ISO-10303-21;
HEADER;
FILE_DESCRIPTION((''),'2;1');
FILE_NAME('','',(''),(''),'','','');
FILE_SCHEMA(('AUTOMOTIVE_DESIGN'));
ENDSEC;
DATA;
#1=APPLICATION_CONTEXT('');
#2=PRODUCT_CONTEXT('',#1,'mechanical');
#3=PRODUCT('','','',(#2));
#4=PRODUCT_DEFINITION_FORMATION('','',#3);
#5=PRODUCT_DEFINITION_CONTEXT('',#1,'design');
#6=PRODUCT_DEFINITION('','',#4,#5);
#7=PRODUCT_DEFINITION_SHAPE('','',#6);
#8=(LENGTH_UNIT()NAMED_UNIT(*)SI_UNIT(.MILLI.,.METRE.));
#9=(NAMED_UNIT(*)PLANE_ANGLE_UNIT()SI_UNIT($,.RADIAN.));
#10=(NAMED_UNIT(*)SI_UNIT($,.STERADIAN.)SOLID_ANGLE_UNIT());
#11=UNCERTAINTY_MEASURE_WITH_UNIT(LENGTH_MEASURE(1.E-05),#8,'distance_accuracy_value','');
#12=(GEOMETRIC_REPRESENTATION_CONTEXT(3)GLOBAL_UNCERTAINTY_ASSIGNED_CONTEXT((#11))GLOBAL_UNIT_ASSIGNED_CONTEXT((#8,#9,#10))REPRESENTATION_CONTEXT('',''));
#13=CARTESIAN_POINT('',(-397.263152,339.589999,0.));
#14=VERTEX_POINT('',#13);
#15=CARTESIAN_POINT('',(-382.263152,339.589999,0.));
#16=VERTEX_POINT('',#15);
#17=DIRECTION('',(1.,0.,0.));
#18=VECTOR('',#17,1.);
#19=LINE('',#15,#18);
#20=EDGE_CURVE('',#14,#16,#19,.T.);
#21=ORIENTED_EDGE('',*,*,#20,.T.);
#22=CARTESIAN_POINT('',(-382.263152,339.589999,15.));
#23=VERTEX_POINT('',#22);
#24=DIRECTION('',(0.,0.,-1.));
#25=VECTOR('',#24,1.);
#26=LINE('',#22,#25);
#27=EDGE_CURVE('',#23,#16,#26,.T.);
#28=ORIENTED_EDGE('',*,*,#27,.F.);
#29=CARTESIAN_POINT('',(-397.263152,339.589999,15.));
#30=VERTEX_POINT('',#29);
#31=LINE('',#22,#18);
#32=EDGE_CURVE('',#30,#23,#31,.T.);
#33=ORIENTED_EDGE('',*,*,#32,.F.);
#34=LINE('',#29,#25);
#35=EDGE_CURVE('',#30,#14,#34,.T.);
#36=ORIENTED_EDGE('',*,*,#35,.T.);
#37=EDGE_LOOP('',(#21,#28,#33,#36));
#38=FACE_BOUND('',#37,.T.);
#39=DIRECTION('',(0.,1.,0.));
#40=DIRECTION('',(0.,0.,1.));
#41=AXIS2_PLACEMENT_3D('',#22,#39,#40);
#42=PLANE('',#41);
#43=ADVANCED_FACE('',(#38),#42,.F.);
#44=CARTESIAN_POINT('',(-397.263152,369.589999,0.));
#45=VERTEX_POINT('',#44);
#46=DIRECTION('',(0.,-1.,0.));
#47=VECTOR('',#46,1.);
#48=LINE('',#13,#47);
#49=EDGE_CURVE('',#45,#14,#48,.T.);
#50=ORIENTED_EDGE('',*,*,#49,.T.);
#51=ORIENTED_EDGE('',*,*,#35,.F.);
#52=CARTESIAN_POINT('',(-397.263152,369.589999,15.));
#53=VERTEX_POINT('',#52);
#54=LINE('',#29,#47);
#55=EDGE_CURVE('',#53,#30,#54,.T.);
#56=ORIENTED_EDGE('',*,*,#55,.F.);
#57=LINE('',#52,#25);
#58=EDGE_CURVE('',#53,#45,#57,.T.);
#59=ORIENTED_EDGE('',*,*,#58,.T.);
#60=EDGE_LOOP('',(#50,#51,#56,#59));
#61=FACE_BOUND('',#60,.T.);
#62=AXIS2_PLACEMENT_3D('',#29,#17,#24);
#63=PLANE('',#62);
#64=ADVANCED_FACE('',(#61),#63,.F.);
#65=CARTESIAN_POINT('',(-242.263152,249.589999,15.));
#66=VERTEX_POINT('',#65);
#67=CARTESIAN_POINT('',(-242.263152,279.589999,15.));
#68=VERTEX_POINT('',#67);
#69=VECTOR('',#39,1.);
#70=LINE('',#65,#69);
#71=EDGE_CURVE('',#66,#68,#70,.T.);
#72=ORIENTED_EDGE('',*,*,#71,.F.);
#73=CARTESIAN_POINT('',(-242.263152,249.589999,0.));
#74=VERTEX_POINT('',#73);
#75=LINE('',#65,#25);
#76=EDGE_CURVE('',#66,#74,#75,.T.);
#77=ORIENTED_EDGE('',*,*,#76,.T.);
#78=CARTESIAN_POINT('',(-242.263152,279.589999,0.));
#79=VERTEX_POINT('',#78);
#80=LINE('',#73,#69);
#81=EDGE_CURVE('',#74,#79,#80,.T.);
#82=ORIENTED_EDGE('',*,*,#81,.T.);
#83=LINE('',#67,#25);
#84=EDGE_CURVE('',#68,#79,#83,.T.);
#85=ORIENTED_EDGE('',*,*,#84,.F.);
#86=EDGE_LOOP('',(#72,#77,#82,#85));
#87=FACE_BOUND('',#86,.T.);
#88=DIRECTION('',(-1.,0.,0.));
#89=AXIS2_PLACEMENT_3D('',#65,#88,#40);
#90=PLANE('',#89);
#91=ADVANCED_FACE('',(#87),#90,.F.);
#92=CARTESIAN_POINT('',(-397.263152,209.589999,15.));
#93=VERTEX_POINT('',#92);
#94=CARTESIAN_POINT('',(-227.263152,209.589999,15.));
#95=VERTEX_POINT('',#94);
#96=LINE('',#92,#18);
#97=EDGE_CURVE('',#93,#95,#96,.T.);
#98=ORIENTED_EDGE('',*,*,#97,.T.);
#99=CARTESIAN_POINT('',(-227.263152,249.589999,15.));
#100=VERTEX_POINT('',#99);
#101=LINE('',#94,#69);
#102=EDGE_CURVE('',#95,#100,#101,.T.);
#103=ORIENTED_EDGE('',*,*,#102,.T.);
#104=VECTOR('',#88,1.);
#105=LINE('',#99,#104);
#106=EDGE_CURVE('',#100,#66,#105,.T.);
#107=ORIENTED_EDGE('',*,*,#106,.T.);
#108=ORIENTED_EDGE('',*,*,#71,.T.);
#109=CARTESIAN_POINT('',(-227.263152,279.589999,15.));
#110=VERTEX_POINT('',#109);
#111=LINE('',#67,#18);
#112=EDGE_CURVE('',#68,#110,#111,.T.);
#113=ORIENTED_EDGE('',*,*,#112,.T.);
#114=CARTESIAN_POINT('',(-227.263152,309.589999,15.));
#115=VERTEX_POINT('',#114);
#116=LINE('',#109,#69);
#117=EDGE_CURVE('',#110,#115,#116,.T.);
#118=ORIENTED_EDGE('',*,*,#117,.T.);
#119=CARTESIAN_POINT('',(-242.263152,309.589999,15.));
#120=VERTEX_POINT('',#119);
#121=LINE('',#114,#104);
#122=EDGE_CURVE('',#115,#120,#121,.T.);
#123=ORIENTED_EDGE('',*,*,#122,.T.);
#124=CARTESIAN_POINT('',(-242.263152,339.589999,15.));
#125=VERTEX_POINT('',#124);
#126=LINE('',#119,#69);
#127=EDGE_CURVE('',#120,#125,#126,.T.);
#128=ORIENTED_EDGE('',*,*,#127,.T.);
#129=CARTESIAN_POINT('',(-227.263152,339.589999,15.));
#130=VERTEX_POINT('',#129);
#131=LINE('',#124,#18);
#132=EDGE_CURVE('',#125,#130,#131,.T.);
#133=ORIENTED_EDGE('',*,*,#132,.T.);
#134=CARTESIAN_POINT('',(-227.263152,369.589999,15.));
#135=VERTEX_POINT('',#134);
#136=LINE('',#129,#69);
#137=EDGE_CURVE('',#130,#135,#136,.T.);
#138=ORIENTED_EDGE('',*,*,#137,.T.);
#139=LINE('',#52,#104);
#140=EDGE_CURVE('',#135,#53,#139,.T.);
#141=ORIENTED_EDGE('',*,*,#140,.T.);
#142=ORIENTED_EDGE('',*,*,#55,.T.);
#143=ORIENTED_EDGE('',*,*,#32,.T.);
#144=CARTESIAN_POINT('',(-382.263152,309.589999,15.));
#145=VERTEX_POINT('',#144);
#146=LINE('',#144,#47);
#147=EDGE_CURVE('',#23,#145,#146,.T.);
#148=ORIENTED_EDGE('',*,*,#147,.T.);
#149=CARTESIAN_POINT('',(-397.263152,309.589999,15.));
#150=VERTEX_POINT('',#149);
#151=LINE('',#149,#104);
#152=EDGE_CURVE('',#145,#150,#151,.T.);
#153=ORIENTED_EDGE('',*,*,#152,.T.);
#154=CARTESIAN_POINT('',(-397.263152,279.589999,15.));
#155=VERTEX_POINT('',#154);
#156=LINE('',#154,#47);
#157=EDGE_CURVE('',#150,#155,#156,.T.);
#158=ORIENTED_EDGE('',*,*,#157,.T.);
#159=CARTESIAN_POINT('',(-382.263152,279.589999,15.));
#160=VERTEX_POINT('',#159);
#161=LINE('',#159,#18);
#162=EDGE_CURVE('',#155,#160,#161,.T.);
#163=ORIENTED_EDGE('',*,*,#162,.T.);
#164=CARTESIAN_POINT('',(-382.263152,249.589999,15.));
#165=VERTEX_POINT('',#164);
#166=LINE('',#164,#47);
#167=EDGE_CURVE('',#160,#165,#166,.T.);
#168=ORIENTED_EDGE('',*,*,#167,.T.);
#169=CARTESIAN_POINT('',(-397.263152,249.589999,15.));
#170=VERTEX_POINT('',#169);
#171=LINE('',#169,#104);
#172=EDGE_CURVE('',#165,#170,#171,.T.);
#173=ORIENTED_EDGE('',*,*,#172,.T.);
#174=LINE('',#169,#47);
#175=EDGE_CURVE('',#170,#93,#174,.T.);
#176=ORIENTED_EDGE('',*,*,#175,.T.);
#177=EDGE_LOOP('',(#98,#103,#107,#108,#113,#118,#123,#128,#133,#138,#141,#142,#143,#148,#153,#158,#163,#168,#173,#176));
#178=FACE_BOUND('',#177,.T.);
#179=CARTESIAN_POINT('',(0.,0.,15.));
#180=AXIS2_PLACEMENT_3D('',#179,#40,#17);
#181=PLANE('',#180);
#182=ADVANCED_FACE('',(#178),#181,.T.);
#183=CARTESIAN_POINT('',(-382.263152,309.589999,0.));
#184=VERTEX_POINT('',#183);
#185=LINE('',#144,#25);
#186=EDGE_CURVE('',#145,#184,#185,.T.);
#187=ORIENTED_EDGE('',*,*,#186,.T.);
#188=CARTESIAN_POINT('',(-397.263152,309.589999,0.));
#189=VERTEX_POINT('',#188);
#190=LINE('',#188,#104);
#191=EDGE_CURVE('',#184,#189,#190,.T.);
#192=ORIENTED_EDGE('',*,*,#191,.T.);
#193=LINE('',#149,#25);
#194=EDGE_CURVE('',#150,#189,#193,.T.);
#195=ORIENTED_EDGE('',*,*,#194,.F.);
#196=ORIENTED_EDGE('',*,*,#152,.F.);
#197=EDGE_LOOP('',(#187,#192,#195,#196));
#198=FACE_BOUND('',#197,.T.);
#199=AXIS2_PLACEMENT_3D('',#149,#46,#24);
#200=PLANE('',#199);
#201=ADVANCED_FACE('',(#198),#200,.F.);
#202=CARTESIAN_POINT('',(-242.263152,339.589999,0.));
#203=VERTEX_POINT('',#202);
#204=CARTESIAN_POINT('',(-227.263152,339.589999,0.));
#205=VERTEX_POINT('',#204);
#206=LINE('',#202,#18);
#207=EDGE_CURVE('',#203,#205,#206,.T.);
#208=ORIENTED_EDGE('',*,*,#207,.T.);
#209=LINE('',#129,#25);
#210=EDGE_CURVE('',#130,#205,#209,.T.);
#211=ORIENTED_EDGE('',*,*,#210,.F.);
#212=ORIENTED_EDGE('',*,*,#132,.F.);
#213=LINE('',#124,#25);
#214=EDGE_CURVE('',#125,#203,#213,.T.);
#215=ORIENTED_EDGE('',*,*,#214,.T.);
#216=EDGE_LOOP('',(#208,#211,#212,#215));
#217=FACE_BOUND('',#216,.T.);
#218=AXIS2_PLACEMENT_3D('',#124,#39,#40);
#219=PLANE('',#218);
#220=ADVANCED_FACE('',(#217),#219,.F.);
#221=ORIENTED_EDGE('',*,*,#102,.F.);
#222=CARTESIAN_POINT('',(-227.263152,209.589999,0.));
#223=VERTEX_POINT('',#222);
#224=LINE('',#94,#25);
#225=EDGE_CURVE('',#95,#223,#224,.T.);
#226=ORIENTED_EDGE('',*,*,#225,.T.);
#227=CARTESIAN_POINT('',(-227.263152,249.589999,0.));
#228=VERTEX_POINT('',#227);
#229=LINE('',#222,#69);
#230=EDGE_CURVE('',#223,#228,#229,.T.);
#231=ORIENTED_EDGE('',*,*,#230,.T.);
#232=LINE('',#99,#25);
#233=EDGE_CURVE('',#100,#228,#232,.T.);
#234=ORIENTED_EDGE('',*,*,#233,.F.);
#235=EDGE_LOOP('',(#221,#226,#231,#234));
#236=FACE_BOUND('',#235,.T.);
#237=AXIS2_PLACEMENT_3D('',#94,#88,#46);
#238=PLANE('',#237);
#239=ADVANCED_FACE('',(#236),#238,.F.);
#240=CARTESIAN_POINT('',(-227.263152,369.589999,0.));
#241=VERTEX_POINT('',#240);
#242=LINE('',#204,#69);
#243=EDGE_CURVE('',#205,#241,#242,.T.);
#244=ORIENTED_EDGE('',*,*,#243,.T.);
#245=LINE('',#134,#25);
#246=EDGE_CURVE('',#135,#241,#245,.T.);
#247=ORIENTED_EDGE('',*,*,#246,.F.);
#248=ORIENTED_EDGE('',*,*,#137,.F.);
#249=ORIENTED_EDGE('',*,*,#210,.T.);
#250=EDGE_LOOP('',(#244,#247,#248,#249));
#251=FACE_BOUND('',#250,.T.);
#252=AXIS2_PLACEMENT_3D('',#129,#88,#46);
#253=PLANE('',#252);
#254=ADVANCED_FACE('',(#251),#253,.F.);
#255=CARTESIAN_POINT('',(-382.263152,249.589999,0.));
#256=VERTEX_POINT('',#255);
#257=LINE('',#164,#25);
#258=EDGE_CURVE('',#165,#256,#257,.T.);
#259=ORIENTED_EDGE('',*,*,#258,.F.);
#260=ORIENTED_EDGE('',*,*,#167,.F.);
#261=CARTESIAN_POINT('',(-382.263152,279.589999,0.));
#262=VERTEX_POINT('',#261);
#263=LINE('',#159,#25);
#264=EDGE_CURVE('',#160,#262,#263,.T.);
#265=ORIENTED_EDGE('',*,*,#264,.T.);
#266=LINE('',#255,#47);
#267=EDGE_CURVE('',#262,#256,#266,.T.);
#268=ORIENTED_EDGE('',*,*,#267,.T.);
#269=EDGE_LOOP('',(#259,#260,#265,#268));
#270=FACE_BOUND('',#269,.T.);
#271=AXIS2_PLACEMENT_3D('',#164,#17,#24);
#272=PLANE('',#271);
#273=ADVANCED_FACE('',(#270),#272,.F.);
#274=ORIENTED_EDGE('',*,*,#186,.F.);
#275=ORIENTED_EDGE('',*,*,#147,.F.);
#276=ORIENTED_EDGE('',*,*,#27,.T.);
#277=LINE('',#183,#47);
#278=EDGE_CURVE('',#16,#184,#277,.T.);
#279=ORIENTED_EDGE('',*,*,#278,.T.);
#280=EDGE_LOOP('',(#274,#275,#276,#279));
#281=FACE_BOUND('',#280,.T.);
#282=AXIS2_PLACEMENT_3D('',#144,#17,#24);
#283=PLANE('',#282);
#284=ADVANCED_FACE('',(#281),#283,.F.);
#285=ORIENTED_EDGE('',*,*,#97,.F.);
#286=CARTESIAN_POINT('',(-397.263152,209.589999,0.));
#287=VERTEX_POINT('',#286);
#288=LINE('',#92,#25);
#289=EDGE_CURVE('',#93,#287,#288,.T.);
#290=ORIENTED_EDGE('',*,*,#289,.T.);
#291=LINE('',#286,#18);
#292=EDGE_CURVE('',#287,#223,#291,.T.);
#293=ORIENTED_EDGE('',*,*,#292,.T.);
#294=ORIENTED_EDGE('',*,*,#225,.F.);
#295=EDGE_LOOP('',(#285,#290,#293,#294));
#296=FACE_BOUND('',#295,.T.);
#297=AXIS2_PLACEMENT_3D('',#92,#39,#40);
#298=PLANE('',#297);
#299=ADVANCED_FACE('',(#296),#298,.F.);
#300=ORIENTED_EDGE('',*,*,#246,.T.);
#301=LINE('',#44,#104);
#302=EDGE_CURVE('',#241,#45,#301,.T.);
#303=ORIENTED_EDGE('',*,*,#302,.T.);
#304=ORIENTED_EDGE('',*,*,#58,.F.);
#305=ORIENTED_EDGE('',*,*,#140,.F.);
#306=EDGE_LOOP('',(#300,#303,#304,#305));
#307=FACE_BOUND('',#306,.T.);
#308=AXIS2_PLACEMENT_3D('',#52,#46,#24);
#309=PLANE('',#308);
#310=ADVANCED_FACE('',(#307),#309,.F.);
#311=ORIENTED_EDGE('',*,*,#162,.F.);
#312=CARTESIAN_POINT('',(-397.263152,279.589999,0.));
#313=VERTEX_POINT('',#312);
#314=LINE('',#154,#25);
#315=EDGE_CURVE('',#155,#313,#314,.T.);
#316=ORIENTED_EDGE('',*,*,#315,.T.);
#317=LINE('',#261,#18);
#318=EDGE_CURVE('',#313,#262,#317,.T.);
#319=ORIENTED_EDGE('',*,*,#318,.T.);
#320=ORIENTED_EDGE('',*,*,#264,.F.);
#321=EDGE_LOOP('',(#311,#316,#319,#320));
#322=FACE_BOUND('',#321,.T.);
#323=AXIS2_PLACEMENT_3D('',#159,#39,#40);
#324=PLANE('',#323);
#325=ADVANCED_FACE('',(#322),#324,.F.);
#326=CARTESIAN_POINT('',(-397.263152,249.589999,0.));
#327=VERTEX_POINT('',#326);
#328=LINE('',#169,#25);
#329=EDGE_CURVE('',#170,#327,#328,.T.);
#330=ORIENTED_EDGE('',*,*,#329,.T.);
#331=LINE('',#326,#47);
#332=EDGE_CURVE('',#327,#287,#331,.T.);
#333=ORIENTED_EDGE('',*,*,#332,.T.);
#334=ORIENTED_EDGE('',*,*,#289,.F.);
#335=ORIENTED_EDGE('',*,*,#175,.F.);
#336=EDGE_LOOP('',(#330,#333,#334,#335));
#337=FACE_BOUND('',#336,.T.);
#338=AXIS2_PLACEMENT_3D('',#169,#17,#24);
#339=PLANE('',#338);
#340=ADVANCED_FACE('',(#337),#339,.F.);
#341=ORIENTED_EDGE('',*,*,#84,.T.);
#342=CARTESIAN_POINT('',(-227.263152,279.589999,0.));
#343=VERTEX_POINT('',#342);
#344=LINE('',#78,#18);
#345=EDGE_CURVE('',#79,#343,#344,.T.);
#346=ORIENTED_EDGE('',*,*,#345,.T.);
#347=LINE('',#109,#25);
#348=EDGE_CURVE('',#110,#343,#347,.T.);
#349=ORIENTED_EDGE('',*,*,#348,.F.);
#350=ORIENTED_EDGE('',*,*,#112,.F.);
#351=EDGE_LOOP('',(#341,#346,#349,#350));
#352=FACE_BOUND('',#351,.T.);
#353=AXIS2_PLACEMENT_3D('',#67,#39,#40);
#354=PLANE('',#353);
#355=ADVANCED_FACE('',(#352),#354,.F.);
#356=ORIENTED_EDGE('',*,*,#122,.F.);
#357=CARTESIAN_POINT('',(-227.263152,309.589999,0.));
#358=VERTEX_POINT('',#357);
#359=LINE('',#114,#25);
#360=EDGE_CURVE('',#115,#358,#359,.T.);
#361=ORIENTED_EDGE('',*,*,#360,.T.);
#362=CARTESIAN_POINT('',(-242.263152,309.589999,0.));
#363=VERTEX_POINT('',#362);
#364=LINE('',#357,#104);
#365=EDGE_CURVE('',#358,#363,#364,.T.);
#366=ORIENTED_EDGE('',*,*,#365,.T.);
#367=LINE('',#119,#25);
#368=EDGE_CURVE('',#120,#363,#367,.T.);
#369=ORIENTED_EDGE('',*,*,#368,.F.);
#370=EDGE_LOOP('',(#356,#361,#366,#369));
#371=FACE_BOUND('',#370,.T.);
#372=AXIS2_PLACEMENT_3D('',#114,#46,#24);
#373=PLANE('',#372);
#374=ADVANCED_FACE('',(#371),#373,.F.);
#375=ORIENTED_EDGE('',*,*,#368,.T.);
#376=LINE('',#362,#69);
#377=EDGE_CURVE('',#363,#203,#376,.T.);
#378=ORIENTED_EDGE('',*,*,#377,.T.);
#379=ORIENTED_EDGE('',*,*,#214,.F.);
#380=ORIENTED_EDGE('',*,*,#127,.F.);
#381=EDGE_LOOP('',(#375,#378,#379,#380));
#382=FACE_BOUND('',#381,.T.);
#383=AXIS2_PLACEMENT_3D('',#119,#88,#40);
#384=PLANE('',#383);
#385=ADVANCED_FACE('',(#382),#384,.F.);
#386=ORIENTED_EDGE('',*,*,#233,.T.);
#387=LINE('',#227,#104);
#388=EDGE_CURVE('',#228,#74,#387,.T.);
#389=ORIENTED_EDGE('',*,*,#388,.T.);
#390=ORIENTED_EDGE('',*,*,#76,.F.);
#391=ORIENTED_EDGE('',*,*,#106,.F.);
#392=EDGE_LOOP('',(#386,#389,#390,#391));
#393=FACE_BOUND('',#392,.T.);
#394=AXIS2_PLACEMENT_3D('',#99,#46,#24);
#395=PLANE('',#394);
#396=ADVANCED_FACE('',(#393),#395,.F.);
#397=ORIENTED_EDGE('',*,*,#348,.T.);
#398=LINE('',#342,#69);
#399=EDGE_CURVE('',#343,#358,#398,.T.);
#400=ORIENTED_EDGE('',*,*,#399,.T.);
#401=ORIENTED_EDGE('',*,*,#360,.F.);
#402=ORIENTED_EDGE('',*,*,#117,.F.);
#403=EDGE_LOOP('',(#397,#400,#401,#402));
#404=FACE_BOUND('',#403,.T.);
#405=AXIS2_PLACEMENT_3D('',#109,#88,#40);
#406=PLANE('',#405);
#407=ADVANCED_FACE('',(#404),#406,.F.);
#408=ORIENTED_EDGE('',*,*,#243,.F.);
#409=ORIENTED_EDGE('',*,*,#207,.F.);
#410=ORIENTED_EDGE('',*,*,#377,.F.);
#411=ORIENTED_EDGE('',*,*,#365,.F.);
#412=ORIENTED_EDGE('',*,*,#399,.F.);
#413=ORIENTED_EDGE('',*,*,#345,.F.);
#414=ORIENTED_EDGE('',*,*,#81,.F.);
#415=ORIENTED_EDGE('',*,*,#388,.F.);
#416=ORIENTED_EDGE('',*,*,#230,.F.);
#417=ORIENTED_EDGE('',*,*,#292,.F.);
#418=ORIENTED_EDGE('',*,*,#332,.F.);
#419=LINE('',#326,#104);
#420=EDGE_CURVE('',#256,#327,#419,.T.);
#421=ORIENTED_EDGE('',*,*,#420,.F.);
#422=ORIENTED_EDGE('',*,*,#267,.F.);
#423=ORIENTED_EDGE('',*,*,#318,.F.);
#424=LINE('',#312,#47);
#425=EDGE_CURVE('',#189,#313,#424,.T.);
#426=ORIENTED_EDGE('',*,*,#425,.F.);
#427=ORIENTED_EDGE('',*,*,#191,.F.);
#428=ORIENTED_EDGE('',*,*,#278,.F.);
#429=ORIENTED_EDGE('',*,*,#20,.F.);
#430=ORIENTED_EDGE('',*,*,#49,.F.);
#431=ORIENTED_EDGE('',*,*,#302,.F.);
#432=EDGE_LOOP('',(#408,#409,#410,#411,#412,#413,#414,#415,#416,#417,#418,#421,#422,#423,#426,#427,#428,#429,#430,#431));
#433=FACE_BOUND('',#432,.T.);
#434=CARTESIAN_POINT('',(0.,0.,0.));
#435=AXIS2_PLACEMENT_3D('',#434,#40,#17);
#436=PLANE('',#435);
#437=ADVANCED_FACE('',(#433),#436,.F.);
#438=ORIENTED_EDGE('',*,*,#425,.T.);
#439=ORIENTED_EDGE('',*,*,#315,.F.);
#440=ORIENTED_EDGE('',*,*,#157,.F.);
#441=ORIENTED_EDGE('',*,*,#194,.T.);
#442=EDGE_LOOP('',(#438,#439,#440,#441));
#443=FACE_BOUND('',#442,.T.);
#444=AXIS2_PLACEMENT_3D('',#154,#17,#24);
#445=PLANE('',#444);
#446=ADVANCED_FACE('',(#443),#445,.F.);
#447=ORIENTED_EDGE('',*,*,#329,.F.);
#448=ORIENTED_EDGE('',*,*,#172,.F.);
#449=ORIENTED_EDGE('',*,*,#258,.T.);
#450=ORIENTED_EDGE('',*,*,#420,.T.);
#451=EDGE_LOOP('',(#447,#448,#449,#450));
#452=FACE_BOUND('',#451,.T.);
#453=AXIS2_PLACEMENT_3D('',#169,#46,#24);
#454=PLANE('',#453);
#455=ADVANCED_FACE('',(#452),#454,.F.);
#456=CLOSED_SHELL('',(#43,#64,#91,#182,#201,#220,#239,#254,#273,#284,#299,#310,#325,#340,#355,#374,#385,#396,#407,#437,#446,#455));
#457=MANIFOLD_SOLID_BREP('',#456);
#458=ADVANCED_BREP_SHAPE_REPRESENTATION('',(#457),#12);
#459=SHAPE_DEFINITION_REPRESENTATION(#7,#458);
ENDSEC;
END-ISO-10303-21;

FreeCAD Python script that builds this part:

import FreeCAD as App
import Part
import Sketcher
from FreeCAD import Vector

doc = App.newDocument("Part")
params = doc.addObject("Spreadsheet::Sheet", "Params")
for row, (alias, value) in enumerate([
    ("sketch1_width", "170 mm"),
    ("sketch1_width2", "15 mm"),
    ("sketch1_height", "40 mm"),
    ("sketch1_height2", "30 mm"),
    ("pad1_length", "15 mm"),
], start=1):
    params.set(f"A{row}", alias)
    params.set(f"B{row}", "=" + value)
    params.setAlias(f"B{row}", alias)

body = doc.addObject("PartDesign::Body", "Body")

# Sketch on XY plane
sketch1 = doc.addObject("Sketcher::SketchObject", "Sketch")
body.addObject(sketch1)
sketch1.AttachmentSupport = (doc.XY_Plane, [""])
sketch1.MapMode = "FlatFace"
sketch1.addGeometry([
    Part.LineSegment(Vector(-397, 210, 0), Vector(-227, 210, 0)),  # 0
    Part.LineSegment(Vector(-227, 210, 0), Vector(-227, 250, 0)),  # 1
    Part.LineSegment(Vector(-227, 250, 0), Vector(-242, 250, 0)),  # 2
    Part.LineSegment(Vector(-242, 250, 0), Vector(-242, 280, 0)),  # 3
    Part.LineSegment(Vector(-242, 280, 0), Vector(-227, 280, 0)),  # 4
    Part.LineSegment(Vector(-227, 280, 0), Vector(-227, 310, 0)),  # 5
    Part.LineSegment(Vector(-227, 310, 0), Vector(-242, 310, 0)),  # 6
    Part.LineSegment(Vector(-242, 310, 0), Vector(-242, 340, 0)),  # 7
    Part.LineSegment(Vector(-242, 340, 0), Vector(-227, 340, 0)),  # 8
    Part.LineSegment(Vector(-227, 340, 0), Vector(-227, 370, 0)),  # 9
    Part.LineSegment(Vector(-227, 370, 0), Vector(-397, 370, 0)),  # 10
    Part.LineSegment(Vector(-397, 370, 0), Vector(-397, 340, 0)),  # 11
    Part.LineSegment(Vector(-397, 340, 0), Vector(-382, 340, 0)),  # 12
    Part.LineSegment(Vector(-382, 340, 0), Vector(-382, 310, 0)),  # 13
    Part.LineSegment(Vector(-382, 310, 0), Vector(-397, 310, 0)),  # 14
    Part.LineSegment(Vector(-397, 310, 0), Vector(-397, 280, 0)),  # 15
    Part.LineSegment(Vector(-397, 280, 0), Vector(-382, 280, 0)),  # 16
    Part.LineSegment(Vector(-382, 280, 0), Vector(-382, 250, 0)),  # 17
    Part.LineSegment(Vector(-382, 250, 0), Vector(-397, 250, 0)),  # 18
    Part.LineSegment(Vector(-397, 250, 0), Vector(-397, 210, 0)),  # 19
], False)
sketch1.addConstraint([
    Sketcher.Constraint("Coincident", 0, 2, 1, 1),
    Sketcher.Constraint("Coincident", 1, 2, 2, 1),
    Sketcher.Constraint("Coincident", 2, 2, 3, 1),
    Sketcher.Constraint("Coincident", 3, 2, 4, 1),
    Sketcher.Constraint("Coincident", 4, 2, 5, 1),
    Sketcher.Constraint("Coincident", 5, 2, 6, 1),
    Sketcher.Constraint("Coincident", 6, 2, 7, 1),
    Sketcher.Constraint("Coincident", 7, 2, 8, 1),
    Sketcher.Constraint("Coincident", 8, 2, 9, 1),
    Sketcher.Constraint("Coincident", 9, 2, 10, 1),
    Sketcher.Constraint("Coincident", 10, 2, 11, 1),
    Sketcher.Constraint("Coincident", 11, 2, 12, 1),
    Sketcher.Constraint("Coincident", 12, 2, 13, 1),
    Sketcher.Constraint("Coincident", 13, 2, 14, 1),
    Sketcher.Constraint("Coincident", 14, 2, 15, 1),
    Sketcher.Constraint("Coincident", 15, 2, 16, 1),
    Sketcher.Constraint("Coincident", 16, 2, 17, 1),
    Sketcher.Constraint("Coincident", 17, 2, 18, 1),
    Sketcher.Constraint("Coincident", 18, 2, 19, 1),
    Sketcher.Constraint("Coincident", 19, 2, 0, 1),
    Sketcher.Constraint("Horizontal", 0),
    Sketcher.Constraint("Vertical", 1),
    Sketcher.Constraint("Horizontal", 2),
    Sketcher.Constraint("Vertical", 3),
    Sketcher.Constraint("Horizontal", 4),
    Sketcher.Constraint("Vertical", 5),
    Sketcher.Constraint("Horizontal", 6),
    Sketcher.Constraint("Vertical", 7),
    Sketcher.Constraint("Horizontal", 8),
    Sketcher.Constraint("Vertical", 9),
    Sketcher.Constraint("Horizontal", 10),
    Sketcher.Constraint("Vertical", 11),
    Sketcher.Constraint("Horizontal", 12),
    Sketcher.Constraint("Vertical", 13),
    Sketcher.Constraint("Horizontal", 14),
    Sketcher.Constraint("Vertical", 15),
    Sketcher.Constraint("Horizontal", 16),
    Sketcher.Constraint("Vertical", 17),
    Sketcher.Constraint("Horizontal", 18),
    Sketcher.Constraint("Vertical", 19),
    Sketcher.Constraint("Horizontal", 8, 2, 11, 2),
    Sketcher.Constraint("Horizontal", 6, 2, 13, 2),
    Sketcher.Constraint("Horizontal", 4, 2, 15, 2),
    Sketcher.Constraint("Horizontal", 2, 2, 17, 2),
    Sketcher.Constraint("Vertical", 1, 2, 4, 2),
    Sketcher.Constraint("Vertical", 3, 2, 6, 2),
    Sketcher.Constraint("Vertical", 5, 2, 8, 2),
    Sketcher.Constraint("Vertical", 11, 2, 14, 2),
    Sketcher.Constraint("Vertical", 13, 2, 16, 2),
    Sketcher.Constraint("Vertical", 15, 2, 18, 2),
    Sketcher.Constraint("Equal", 8, 12),
    Sketcher.Constraint("Equal", 3, 5),
    Sketcher.Constraint("Equal", 5, 7),
    Sketcher.Constraint("Equal", 7, 9),
    Sketcher.Constraint("DistanceX", 0, 1, 0, 2, 170.0),
    Sketcher.Constraint("DistanceX", 2, 2, 2, 1, 15.0),
    Sketcher.Constraint("DistanceY", 1, 1, 1, 2, 40.0),
    Sketcher.Constraint("DistanceY", 3, 1, 3, 2, 30.0),
    Sketcher.Constraint("DistanceY", -1, 1, 0, 2, 209.589999),
    Sketcher.Constraint("DistanceX", 0, 2, -1, 1, 227.263152),
])
sketch1.setExpression("Constraints[54]", "Params.sketch1_width")
sketch1.setExpression("Constraints[55]", "Params.sketch1_width2")
sketch1.setExpression("Constraints[56]", "Params.sketch1_height")
sketch1.setExpression("Constraints[57]", "Params.sketch1_height2")
pad1 = doc.addObject("PartDesign::Pad", "Pad")
body.addObject(pad1)
pad1.Profile = sketch1
pad1.setExpression("Length", "Params.pad1_length")

doc.recompute()
